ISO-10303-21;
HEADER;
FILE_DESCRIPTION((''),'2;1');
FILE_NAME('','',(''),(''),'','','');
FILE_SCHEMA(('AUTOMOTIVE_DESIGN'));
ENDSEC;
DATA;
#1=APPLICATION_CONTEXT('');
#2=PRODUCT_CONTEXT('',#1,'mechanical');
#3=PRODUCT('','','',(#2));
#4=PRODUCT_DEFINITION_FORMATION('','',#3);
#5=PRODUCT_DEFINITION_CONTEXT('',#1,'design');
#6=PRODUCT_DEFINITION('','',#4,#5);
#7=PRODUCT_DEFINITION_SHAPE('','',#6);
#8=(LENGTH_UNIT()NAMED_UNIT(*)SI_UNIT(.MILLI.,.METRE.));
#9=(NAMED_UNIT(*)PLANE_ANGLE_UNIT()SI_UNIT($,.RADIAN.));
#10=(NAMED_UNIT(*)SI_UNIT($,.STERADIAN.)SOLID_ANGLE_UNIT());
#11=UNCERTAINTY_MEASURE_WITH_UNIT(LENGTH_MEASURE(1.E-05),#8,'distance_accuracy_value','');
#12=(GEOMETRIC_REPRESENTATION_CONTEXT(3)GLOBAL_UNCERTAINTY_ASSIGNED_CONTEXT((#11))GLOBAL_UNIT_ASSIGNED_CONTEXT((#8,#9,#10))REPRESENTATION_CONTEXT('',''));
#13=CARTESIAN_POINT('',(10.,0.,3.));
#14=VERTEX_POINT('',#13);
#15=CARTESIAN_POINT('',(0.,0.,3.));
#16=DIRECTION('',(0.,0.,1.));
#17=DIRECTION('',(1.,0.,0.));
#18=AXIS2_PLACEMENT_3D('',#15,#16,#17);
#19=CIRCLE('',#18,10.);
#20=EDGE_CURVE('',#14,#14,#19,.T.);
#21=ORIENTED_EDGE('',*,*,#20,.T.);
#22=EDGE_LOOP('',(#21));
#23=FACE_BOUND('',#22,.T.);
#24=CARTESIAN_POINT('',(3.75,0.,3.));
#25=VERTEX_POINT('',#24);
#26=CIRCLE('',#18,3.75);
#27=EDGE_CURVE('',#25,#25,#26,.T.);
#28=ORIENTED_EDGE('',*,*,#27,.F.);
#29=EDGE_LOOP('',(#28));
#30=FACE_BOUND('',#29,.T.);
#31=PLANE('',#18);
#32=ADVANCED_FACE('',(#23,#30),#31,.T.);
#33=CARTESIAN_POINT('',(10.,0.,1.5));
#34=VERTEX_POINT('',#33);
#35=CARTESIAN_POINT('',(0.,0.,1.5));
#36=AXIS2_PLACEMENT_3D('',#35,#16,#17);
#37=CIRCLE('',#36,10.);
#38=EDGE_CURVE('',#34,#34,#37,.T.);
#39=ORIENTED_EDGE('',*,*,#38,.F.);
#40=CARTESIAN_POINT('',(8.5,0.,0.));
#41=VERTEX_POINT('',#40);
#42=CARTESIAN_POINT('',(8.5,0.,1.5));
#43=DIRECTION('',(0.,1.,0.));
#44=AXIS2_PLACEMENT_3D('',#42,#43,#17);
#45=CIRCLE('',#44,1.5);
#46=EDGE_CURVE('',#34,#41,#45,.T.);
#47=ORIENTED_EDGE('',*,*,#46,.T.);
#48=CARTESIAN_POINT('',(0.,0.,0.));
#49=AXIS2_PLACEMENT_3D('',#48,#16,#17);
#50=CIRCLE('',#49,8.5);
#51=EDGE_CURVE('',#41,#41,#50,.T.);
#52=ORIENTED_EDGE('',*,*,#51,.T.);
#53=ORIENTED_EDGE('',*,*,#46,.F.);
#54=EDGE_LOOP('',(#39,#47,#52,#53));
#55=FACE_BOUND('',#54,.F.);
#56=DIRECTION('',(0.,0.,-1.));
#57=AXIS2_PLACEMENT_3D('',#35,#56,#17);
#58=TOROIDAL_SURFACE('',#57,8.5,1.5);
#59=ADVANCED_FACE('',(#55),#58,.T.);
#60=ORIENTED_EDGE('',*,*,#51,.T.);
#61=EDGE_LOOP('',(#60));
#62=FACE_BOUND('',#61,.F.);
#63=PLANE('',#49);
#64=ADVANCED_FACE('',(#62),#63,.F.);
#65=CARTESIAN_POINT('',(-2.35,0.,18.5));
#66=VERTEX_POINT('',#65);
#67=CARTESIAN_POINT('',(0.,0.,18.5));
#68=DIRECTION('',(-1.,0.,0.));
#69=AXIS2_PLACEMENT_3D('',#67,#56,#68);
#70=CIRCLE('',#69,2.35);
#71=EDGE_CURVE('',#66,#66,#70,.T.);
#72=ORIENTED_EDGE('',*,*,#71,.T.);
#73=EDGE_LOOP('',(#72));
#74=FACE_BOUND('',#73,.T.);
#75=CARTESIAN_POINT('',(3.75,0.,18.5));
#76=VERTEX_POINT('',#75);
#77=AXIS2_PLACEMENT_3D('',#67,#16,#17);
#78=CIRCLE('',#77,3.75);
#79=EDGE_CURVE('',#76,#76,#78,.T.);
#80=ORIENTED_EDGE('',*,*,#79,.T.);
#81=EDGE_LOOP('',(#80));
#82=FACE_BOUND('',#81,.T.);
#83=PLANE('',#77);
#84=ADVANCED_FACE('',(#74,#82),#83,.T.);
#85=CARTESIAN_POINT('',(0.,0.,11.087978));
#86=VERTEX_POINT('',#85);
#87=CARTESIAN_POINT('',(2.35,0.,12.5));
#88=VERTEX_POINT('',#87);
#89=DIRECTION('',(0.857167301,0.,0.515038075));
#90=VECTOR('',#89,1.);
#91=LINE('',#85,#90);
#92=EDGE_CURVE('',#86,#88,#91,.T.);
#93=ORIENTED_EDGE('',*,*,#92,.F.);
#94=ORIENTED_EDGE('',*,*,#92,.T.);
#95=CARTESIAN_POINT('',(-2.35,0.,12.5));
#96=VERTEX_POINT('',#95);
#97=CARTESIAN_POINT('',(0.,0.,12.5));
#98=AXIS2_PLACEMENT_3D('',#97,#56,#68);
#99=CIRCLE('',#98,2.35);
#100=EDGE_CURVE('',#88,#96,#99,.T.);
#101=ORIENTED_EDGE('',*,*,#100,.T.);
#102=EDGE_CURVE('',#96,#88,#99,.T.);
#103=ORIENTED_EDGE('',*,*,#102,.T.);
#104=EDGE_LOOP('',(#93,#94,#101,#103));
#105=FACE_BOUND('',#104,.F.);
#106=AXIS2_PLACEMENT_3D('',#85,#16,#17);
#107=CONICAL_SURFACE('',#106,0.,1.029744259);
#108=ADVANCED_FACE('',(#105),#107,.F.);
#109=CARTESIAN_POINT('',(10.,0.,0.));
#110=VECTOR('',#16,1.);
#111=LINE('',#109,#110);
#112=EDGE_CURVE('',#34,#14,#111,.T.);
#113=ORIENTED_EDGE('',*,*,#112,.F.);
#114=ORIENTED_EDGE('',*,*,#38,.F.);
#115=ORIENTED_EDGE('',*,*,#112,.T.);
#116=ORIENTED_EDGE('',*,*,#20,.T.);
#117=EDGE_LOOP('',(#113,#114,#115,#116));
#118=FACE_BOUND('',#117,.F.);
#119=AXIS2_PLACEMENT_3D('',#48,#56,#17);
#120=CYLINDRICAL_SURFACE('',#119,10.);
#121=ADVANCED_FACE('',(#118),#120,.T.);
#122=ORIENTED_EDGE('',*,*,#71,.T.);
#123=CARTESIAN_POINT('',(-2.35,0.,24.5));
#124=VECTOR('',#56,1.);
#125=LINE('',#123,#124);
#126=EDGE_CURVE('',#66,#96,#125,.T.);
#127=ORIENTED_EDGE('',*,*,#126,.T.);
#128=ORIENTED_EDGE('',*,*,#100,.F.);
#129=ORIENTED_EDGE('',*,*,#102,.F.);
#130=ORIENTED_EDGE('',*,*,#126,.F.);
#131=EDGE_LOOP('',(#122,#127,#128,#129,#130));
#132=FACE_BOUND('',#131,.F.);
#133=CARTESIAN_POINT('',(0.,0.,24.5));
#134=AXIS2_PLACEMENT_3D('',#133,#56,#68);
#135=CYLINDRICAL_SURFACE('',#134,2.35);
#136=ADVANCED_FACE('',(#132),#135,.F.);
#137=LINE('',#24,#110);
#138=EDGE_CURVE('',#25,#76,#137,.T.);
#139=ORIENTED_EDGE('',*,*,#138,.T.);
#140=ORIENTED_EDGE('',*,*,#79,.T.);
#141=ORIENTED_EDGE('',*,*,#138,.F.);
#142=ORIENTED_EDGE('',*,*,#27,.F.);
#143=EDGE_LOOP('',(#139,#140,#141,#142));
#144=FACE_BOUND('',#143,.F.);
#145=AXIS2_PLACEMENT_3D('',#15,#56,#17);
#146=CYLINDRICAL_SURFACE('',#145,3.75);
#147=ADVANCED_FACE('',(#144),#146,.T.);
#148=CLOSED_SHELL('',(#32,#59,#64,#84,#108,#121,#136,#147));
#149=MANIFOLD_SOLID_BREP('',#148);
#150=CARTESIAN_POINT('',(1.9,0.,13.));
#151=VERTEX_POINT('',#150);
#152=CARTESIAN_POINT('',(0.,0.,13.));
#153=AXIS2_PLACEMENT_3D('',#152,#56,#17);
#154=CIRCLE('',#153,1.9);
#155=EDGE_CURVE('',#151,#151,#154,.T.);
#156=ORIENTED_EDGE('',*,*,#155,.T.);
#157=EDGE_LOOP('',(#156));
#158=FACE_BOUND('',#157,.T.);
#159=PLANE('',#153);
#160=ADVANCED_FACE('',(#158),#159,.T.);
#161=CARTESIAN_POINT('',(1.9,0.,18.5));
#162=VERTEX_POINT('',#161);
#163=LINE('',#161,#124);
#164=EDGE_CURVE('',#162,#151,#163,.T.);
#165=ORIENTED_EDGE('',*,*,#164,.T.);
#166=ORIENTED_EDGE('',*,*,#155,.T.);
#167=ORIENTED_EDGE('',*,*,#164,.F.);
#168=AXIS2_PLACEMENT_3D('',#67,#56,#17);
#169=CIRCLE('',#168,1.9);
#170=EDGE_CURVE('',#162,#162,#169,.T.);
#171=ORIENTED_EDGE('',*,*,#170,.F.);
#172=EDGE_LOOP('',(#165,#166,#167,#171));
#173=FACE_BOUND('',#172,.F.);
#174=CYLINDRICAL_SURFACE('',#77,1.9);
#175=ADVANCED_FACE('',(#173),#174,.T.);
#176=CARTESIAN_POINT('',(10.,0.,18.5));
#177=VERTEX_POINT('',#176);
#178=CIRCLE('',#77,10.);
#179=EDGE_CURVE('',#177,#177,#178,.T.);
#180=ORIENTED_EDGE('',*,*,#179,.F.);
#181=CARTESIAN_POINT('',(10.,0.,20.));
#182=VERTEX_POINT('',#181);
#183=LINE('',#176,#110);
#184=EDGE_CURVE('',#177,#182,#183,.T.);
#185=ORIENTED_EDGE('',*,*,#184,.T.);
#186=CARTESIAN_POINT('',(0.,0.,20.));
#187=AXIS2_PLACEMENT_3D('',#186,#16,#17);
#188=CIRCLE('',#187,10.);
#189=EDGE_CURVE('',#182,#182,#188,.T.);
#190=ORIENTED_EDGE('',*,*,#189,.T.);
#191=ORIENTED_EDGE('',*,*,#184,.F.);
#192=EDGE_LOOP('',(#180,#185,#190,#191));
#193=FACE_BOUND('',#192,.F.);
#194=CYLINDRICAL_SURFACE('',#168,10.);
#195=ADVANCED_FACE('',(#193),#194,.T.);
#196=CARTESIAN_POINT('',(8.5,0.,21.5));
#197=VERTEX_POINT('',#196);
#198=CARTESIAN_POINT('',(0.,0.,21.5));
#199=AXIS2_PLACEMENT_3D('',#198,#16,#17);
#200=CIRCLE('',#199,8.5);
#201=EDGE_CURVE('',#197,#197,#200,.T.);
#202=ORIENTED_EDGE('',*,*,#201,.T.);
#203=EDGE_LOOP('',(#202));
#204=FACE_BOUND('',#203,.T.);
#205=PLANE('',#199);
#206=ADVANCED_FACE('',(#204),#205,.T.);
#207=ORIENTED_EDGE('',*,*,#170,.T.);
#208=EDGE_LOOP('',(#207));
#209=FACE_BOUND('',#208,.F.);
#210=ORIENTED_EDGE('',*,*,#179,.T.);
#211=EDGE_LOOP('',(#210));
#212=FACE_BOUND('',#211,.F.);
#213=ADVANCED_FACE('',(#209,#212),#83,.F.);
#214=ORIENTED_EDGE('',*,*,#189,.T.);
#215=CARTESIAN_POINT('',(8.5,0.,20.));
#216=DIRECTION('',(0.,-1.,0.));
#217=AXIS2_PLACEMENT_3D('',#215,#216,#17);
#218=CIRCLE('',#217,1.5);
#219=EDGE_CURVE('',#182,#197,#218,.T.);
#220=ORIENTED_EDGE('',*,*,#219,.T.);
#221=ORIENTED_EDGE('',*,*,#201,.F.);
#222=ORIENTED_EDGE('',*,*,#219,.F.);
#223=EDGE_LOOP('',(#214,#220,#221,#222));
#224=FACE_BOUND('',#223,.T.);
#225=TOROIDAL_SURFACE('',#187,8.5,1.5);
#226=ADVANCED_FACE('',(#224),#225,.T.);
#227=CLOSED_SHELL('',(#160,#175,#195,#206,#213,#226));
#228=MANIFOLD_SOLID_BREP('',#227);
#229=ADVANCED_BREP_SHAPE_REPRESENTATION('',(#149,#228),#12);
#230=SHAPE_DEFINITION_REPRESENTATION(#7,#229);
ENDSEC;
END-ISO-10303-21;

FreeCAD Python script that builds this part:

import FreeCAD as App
import Part
import Sketcher

V = App.Vector


def edges_at(feature, points):
    """Names of the edges that pass closest to the given points."""
    edges = feature.Shape.Edges
    near = lambda p: min(range(len(edges)), key=lambda i: edges[i].distToShape(Part.Vertex(*p))[0])
    return sorted({f"Edge{near(p) + 1}" for p in points})

doc = App.newDocument("Part")
body = doc.addObject("PartDesign::Body", "Body")

# Sketch on XY plane
sketch1 = body.newObject("Sketcher::SketchObject", "Sketch")
sketch1.AttachmentSupport = (doc.getObject("XY_Plane"), [""])
sketch1.MapMode = "FlatFace"
sketch1.addGeometry(Part.Circle(V(0, 0, 0), V(0, 0, 1), 10), False)
sketch1.addConstraint([
    Sketcher.Constraint("Coincident", 0, 3, -1, 1),
    Sketcher.Constraint("Diameter", 0, 20.0),
])
pad1 = body.newObject("PartDesign::Pad", "Pad")
pad1.Profile = sketch1
pad1.Length = 3

# Sketch on XY plane
sketch2 = body.newObject("Sketcher::SketchObject", "Sketch001")
sketch2.AttachmentSupport = (doc.getObject("XY_Plane"), [""])
sketch2.MapMode = "FlatFace"
sketch2.AttachmentOffset = App.Placement(V(0, 0, 3), App.Rotation())
sketch2.addGeometry(Part.Circle(V(0, 0, 0), V(0, 0, 1), 3.8), False)
sketch2.addConstraint([
    Sketcher.Constraint("Coincident", 0, 3, -1, 1),
    Sketcher.Constraint("Diameter", 0, 7.5),
])
pad2 = body.newObject("PartDesign::Pad", "Pad001")
pad2.Profile = sketch2
pad2.Length = 15.5

# Sketch on XY plane
sketch3 = body.newObject("Sketcher::SketchObject", "Sketch002")
sketch3.AttachmentSupport = (doc.getObject("XY_Plane"), [""])
sketch3.MapMode = "FlatFace"
sketch3.AttachmentOffset = App.Placement(V(0, 0, 18.5), App.Rotation())
sketch3.addGeometry(Part.Circle(V(0, 0, 0), V(0, 0, 1), 2.4), False)
sketch3.addConstraint([
    Sketcher.Constraint("Coincident", 0, 3, -1, 1),
    Sketcher.Constraint("Diameter", 0, 4.7),
])
doc.recompute()
hole = body.newObject("PartDesign::Hole", "Hole")
hole.Profile = sketch3
hole.ThreadType = "None"
hole.Diameter = 4.7
hole.DepthType = "Dimension"
hole.Depth = 6
hole.DrillPoint = "Angled"
hole.DrillPointAngle = 118
doc.recompute()

fillet = body.newObject("PartDesign::Fillet", "Fillet")
fillet.Base = (hole, edges_at(hole, [(-10, 0, 0)]))
fillet.Radius = 1.5
body2 = doc.addObject("PartDesign::Body", "Body001")

# Sketch on XY plane
sketch4 = body2.newObject("Sketcher::SketchObject", "Sketch003")
sketch4.AttachmentSupport = (doc.getObject("XY_Plane001"), [""])
sketch4.MapMode = "FlatFace"
sketch4.AttachmentOffset = App.Placement(V(0, 0, 18.5), App.Rotation())
sketch4.addGeometry(Part.Circle(V(0, 0, 0), V(0, 0, 1), 10), False)
sketch4.addConstraint([
    Sketcher.Constraint("Coincident", 0, 3, -1, 1),
    Sketcher.Constraint("Diameter", 0, 20.0),
])
pad3 = body2.newObject("PartDesign::Pad", "Pad002")
pad3.Profile = sketch4
pad3.Length = 3

# Sketch on XY plane
sketch5 = body2.newObject("Sketcher::SketchObject", "Sketch004")
sketch5.AttachmentSupport = (doc.getObject("XY_Plane001"), [""])
sketch5.MapMode = "FlatFace"
sketch5.AttachmentOffset = App.Placement(V(0, 0, 18.5), App.Rotation())
sketch5.addGeometry(Part.Circle(V(0, 0, 0), V(0, 0, 1), 1.9), False)
sketch5.addConstraint([
    Sketcher.Constraint("Coincident", 0, 3, -1, 1),
    Sketcher.Constraint("Diameter", 0, 3.8),
])
pad4 = body2.newObject("PartDesign::Pad", "Pad003")
pad4.Profile = sketch5
pad4.Length = 5.5
pad4.Reversed = True
doc.recompute()

fillet2 = body2.newObject("PartDesign::Fillet", "Fillet001")
fillet2.Base = (pad4, edges_at(pad4, [(-10, 0, 21.5)]))
fillet2.Radius = 1.5

doc.recompute()
